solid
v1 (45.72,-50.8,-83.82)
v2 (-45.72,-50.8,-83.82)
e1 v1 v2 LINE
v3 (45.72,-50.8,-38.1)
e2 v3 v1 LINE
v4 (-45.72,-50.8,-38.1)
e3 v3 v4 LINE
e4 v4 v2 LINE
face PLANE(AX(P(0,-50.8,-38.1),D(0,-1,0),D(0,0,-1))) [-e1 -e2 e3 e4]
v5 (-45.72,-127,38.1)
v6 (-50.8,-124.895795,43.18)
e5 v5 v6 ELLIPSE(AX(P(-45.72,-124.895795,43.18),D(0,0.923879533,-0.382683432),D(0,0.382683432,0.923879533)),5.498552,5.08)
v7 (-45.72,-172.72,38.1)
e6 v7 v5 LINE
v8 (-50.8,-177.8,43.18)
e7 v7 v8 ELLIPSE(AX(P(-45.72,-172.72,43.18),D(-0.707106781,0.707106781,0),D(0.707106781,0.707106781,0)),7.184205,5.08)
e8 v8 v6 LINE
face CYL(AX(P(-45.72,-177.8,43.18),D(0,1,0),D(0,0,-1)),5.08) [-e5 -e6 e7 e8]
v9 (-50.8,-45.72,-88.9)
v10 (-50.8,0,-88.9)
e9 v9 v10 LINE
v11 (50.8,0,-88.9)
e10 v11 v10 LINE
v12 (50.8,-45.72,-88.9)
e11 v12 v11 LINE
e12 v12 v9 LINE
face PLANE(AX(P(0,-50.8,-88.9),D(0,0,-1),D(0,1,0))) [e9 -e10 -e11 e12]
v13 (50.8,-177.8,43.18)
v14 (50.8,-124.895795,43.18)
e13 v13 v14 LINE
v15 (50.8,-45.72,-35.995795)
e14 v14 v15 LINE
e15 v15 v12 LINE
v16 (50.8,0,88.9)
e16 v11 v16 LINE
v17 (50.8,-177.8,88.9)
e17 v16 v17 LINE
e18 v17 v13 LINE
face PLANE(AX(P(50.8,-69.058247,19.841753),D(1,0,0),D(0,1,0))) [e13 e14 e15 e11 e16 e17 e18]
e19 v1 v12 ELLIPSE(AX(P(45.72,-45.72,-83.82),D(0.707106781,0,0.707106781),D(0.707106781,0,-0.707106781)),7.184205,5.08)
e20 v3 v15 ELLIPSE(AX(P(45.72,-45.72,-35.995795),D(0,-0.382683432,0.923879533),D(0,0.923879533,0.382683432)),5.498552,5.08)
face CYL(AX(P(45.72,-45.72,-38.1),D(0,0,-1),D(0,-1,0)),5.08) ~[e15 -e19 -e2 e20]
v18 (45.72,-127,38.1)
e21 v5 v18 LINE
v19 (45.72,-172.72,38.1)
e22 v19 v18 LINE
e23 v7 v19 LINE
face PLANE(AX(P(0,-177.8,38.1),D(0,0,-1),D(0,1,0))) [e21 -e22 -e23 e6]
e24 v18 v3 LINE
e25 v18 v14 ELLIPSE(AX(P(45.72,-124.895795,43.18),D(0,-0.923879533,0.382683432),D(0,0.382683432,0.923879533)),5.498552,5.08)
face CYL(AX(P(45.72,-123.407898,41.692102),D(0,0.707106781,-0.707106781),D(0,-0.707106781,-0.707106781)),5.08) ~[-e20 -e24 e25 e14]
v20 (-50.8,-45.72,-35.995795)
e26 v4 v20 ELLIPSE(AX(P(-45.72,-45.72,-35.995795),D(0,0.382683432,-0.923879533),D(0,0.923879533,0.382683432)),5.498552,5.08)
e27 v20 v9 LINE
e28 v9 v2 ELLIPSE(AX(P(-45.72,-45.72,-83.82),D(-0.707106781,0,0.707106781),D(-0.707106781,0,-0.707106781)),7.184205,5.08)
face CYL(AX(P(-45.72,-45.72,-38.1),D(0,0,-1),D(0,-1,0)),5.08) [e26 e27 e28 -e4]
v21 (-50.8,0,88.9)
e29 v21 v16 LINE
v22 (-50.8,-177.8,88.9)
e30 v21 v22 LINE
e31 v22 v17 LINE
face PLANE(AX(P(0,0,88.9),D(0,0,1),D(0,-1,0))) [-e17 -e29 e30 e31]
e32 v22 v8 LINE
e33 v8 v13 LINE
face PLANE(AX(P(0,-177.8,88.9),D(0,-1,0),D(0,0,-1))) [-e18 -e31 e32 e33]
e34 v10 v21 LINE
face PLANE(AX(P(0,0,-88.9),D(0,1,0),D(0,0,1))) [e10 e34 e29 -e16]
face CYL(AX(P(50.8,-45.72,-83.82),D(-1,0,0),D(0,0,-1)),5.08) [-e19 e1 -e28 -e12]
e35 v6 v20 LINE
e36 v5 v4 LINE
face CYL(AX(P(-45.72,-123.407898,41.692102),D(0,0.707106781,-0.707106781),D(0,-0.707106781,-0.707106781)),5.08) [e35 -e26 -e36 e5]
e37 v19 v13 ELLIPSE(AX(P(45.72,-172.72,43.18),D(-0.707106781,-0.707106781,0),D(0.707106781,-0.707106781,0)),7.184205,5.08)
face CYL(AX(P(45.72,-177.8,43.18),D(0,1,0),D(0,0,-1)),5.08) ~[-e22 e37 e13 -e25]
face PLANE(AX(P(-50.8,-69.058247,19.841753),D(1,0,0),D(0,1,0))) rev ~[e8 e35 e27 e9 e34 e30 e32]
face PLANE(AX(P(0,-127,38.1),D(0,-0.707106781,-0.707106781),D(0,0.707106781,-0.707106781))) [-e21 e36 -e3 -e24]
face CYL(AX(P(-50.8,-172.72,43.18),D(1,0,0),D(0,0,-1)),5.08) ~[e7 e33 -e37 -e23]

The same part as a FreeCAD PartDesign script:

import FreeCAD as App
import Part
import Sketcher
from FreeCAD import Vector
Q = App.Units.Quantity


def edges_at(feature, points):
    """Names of the edges that pass closest to the given points."""
    edges = feature.Shape.Edges
    near = lambda p: min(range(len(edges)), key=lambda i: edges[i].distToShape(Part.Vertex(*p))[0])
    return sorted({f"Edge{near(p) + 1}" for p in points})

doc = App.newDocument("Part")
body = doc.addObject("PartDesign::Body", "Body")

# Sketch on YZ plane
sketch1 = doc.addObject("Sketcher::SketchObject", "Sketch")
body.addObject(sketch1)
sketch1.AttachmentSupport = (doc.YZ_Plane, [""])
sketch1.MapMode = "FlatFace"
sketch1.addGeometry([
    Part.LineSegment(Vector(0, -89, 0), Vector(0, 89, 0)),  # 0
    Part.LineSegment(Vector(0, 89, 0), Vector(-178, 89, 0)),  # 1
    Part.LineSegment(Vector(-178, 89, 0), Vector(-178, 38, 0)),  # 2
    Part.LineSegment(Vector(-178, 38, 0), Vector(-127, 38, 0)),  # 3
    Part.LineSegment(Vector(-127, 38, 0), Vector(-51, -38, 0)),  # 4
    Part.LineSegment(Vector(-51, -38, 0), Vector(-51, -89, 0)),  # 5
    Part.LineSegment(Vector(-51, -89, 0), Vector(0, -89, 0)),  # 6
], False)
sketch1.addConstraint([
    Sketcher.Constraint("Coincident", 0, 2, 1, 1),
    Sketcher.Constraint("Coincident", 1, 2, 2, 1),
    Sketcher.Constraint("Coincident", 2, 2, 3, 1),
    Sketcher.Constraint("Coincident", 3, 2, 4, 1),
    Sketcher.Constraint("Coincident", 4, 2, 5, 1),
    Sketcher.Constraint("Coincident", 5, 2, 6, 1),
    Sketcher.Constraint("Coincident", 6, 2, 0, 1),
    Sketcher.Constraint("Vertical", 0),
    Sketcher.Constraint("Horizontal", 1),
    Sketcher.Constraint("Vertical", 2),
    Sketcher.Constraint("Horizontal", 3),
    Sketcher.Constraint("Vertical", 5),
    Sketcher.Constraint("Horizontal", 6),
    Sketcher.Constraint("Symmetric", 0, 2, 6, 2, -1, 1),
    Sketcher.Constraint("Equal", 3, 6),
    Sketcher.Constraint("Equal", 1, 0),
    Sketcher.Constraint("Equal", 6, 2),
    Sketcher.Constraint("Equal", 2, 5),
    Sketcher.Constraint("DistanceX", 1, 2, 1, 1, Q("7 in")),
    Sketcher.Constraint("DistanceX", 3, 1, 3, 2, Q("2 in")),
])
pad1 = doc.addObject("PartDesign::Pad", "Pad")
body.addObject(pad1)
pad1.Profile = sketch1
pad1.Length = Q("4 in")
pad1.Midplane = True
doc.recompute()

fillet = doc.addObject("PartDesign::Fillet", "Fillet")
body.addObject(fillet)
fillet.Base = (pad1, edges_at(pad1, [
    (0, -177.8, 38.1),
    (50.8, -152.4, 38.1),
    (50.8, -88.9, 0),
    (50.8, -50.8, -63.5),
    (0, -50.8, -88.9),
    (-50.8, -152.4, 38.1),
    (-50.8, -88.9, 0),
    (-50.8, -50.8, -63.5),
]))
fillet.Radius = Q("0.2 in")

doc.recompute()
